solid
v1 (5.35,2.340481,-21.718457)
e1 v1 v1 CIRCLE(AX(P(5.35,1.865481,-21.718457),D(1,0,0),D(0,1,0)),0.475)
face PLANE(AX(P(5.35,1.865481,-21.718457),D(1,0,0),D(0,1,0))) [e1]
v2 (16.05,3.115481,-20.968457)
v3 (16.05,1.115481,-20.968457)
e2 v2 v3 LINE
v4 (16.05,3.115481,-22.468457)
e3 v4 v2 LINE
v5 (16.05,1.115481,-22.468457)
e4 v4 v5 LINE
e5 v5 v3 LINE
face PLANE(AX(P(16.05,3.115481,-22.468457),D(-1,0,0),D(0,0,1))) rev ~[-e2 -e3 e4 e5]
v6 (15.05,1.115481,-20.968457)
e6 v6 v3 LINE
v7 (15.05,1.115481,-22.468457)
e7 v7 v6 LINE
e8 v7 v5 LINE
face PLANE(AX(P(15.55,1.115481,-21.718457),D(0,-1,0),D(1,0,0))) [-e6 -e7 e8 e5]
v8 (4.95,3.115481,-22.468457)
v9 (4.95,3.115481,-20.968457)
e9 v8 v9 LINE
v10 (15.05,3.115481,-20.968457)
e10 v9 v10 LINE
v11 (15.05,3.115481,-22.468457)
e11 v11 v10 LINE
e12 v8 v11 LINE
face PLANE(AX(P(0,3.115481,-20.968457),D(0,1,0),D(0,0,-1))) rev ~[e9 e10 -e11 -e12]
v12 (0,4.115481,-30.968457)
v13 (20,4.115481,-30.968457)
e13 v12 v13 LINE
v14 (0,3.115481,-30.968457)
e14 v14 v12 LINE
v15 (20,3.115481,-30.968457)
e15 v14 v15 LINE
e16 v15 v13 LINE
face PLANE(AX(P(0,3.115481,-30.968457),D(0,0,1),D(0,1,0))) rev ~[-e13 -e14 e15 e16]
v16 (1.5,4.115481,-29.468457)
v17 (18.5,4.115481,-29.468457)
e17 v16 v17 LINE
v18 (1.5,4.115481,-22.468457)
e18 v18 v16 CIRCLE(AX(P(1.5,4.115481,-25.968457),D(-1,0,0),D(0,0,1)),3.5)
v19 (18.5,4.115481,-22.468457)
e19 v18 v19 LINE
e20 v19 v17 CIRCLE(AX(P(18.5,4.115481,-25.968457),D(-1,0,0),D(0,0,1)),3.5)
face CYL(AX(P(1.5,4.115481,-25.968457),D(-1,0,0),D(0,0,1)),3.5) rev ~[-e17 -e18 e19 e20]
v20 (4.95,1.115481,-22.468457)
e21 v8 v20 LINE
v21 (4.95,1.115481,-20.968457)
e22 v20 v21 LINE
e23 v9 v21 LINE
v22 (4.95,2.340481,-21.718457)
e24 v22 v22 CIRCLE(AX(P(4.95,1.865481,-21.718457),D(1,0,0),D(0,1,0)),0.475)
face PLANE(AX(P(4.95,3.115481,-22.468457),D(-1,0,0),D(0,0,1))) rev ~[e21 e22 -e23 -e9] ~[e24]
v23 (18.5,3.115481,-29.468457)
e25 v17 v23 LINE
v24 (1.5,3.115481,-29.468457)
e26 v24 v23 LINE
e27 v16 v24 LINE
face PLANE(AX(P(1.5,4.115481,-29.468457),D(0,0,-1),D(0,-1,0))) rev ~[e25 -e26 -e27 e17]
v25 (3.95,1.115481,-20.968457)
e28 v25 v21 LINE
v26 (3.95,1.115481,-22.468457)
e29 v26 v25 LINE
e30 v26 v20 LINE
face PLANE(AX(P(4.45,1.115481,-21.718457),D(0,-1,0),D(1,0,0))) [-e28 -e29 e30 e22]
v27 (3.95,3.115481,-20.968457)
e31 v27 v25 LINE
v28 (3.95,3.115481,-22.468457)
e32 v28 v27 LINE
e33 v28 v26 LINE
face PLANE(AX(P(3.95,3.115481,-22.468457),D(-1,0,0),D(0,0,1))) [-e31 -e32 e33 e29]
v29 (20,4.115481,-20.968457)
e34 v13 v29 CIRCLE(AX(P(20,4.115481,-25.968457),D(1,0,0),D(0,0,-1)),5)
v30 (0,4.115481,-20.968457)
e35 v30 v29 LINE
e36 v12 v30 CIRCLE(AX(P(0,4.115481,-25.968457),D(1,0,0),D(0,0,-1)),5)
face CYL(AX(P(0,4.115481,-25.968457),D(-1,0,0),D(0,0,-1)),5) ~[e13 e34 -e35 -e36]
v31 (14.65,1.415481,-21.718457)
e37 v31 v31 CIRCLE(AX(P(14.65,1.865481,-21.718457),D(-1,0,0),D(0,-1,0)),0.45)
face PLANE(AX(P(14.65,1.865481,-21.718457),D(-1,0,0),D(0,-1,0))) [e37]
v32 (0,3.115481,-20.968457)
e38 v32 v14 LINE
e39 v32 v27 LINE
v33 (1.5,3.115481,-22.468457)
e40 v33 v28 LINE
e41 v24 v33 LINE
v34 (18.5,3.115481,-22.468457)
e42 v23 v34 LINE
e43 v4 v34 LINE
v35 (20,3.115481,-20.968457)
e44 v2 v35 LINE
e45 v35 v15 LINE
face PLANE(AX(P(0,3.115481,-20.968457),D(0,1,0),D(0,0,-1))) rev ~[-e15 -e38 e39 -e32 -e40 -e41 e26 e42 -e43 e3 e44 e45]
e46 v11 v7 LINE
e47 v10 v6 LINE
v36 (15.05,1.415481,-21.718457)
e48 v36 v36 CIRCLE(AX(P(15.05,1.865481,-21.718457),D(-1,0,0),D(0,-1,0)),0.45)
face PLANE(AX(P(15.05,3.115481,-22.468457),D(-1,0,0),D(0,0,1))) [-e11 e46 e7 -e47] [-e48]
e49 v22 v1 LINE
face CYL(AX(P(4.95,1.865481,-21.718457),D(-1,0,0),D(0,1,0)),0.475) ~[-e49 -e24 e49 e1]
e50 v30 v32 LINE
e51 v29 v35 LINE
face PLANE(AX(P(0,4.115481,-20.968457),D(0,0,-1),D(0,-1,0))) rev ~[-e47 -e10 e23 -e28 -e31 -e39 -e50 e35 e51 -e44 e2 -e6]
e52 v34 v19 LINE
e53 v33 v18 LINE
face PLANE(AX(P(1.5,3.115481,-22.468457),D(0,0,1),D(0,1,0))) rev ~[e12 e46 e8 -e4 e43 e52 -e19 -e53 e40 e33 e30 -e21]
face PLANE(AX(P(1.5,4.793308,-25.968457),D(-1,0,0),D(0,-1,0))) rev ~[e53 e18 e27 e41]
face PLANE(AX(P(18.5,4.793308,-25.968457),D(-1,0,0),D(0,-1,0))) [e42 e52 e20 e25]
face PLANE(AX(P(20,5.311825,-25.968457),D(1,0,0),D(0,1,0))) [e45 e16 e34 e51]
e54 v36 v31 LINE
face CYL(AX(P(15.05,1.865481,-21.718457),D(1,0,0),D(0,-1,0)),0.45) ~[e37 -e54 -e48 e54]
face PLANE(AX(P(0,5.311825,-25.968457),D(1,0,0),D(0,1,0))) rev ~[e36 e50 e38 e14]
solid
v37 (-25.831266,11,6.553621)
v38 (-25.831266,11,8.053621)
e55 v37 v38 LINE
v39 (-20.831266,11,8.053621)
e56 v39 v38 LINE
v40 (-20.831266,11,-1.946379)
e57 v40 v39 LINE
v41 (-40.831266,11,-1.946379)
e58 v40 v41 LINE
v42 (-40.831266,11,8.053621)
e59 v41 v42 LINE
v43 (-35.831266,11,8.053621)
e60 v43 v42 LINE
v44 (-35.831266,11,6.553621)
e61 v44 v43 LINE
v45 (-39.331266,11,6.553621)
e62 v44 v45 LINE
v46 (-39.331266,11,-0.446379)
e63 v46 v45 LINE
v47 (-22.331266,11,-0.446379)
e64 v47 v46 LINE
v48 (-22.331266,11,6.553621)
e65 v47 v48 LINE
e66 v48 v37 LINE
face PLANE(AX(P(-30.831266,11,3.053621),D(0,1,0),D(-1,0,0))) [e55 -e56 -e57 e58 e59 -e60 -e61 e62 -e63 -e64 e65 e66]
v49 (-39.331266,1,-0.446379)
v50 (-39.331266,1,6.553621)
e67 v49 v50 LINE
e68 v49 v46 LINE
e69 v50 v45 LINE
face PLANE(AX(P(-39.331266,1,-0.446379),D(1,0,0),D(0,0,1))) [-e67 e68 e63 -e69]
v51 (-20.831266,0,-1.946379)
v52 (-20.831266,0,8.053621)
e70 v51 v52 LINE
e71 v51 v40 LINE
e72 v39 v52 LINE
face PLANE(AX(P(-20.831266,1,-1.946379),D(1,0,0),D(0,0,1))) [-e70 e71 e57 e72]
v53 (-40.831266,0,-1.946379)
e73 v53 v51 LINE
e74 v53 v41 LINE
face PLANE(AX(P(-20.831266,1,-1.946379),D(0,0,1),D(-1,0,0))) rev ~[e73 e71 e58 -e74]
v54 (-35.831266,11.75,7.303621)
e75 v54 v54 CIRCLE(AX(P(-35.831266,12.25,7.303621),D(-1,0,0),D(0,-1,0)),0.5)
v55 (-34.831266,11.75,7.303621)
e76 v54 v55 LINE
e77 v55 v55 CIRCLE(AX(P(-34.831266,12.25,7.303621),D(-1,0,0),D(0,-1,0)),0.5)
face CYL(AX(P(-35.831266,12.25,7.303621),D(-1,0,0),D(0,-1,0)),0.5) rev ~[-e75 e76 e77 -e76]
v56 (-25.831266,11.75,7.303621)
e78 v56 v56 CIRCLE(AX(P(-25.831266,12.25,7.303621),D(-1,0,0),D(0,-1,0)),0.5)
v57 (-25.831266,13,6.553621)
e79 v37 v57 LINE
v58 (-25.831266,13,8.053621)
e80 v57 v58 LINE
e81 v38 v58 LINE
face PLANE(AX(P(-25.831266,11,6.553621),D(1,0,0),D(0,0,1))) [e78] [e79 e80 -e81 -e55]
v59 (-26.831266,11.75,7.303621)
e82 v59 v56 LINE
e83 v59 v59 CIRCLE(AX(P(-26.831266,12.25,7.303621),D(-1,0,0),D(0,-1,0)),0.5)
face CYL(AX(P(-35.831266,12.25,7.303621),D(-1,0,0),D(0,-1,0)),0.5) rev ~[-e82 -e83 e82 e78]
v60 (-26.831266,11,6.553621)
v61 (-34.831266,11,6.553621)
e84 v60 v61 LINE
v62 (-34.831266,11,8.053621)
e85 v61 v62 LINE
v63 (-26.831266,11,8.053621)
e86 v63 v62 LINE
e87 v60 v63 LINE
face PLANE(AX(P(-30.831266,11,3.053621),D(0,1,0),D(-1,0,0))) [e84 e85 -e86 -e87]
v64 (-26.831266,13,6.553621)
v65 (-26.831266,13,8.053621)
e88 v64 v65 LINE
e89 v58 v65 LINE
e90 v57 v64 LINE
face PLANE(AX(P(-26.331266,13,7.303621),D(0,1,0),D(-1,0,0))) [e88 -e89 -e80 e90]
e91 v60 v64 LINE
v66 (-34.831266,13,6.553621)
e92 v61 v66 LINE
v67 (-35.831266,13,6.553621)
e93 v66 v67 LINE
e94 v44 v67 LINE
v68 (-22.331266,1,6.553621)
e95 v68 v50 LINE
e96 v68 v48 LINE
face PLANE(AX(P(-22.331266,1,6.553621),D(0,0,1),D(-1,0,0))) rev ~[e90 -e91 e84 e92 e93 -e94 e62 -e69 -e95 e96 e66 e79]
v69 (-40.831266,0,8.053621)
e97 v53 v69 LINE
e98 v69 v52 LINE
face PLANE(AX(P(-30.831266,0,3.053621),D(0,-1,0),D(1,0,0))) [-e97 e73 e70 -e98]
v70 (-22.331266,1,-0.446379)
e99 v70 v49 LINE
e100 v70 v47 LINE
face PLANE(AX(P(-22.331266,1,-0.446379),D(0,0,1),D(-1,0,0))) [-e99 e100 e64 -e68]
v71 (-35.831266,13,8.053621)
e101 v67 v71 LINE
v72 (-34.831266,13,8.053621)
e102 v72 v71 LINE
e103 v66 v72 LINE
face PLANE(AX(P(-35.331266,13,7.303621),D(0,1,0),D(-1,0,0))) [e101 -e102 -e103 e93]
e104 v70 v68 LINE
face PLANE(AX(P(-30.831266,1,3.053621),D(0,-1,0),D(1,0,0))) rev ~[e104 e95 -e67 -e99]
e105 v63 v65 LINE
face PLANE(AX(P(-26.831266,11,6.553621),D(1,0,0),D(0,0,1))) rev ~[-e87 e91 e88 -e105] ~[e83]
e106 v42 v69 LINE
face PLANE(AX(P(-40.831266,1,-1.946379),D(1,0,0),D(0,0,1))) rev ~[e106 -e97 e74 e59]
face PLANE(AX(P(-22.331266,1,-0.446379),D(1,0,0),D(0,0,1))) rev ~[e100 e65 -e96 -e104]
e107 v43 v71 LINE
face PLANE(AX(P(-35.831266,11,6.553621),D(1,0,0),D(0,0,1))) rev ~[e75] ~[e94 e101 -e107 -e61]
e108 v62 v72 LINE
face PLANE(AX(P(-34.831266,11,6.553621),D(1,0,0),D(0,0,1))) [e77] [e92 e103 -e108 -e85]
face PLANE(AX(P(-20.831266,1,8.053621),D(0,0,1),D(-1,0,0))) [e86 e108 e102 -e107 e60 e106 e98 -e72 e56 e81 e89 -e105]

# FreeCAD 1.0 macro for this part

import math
import FreeCAD as App
import Part
import Sketcher
Q = App.Units.Quantity

doc = App.newDocument("Part")
body = doc.addObject("PartDesign::Body", "Body")

# Sketch on XZ plane
sketch1 = body.newObject("Sketcher::SketchObject", "Sketch")
sketch1.AttachmentSupport = (doc.getObject("XZ_Plane"), [""])
sketch1.MapMode = "FlatFace"
sketch1.addGeometry([
    Part.LineSegment(App.Vector(-41, 8, 0), App.Vector(-41, -2, 0)),
    Part.LineSegment(App.Vector(-41, -2, 0), App.Vector(-21, -2, 0)),
    Part.LineSegment(App.Vector(-21, -2, 0), App.Vector(-21, 8, 0)),
    Part.LineSegment(App.Vector(-21, 8, 0), App.Vector(-41, 8, 0)),
], False)
sketch1.addConstraint([
    Sketcher.Constraint("Coincident", 0, 2, 1, 1),
    Sketcher.Constraint("Coincident", 1, 2, 2, 1),
    Sketcher.Constraint("Coincident", 2, 2, 3, 1),
    Sketcher.Constraint("Coincident", 3, 2, 0, 1),
    Sketcher.Constraint("Vertical", 0),
    Sketcher.Constraint("Horizontal", 1),
    Sketcher.Constraint("Vertical", 2),
    Sketcher.Constraint("Horizontal", 3),
    Sketcher.Constraint("DistanceX", 1, 1, 1, 2, Q("20 mm")),
    Sketcher.Constraint("DistanceY", 0, 2, 0, 1, Q("10 mm")),
    Sketcher.Constraint("DistanceY", 0, 2, -1, 1, Q("1.946379 mm")),
    Sketcher.Constraint("DistanceX", 0, 2, -1, 1, Q("40.831266 mm")),
])
pad1 = body.newObject("PartDesign::Pad", "Pad")
pad1.Profile = sketch1
pad1.Length = 1
pad1.Reversed = True

# Sketch on XZ plane
sketch2 = body.newObject("Sketcher::SketchObject", "Sketch001")
sketch2.AttachmentSupport = (doc.getObject("XZ_Plane"), [""])
sketch2.MapMode = "FlatFace"
sketch2.AttachmentOffset = App.Placement(App.Vector(0, 0, -1), App.Rotation())
sketch2.addGeometry([
    Part.LineSegment(App.Vector(-21, 8, 0), App.Vector(-21, -2, 0)),  # 0
    Part.LineSegment(App.Vector(-21, -2, 0), App.Vector(-41, -2, 0)),  # 1
    Part.LineSegment(App.Vector(-41, -2, 0), App.Vector(-41, 8, 0)),  # 2
    Part.LineSegment(App.Vector(-41, 8, 0), App.Vector(-21, 8, 0)),  # 3
    Part.LineSegment(App.Vector(-39, 0, 0), App.Vector(-22, 0, 0)),  # 4
    Part.LineSegment(App.Vector(-22, 0, 0), App.Vector(-22, 7, 0)),  # 5
    Part.LineSegment(App.Vector(-22, 7, 0), App.Vector(-39, 7, 0)),  # 6
    Part.LineSegment(App.Vector(-39, 7, 0), App.Vector(-39, 0, 0)),  # 7
], False)
sketch2.addConstraint([
    Sketcher.Constraint("Coincident", 0, 2, 1, 1),
    Sketcher.Constraint("Coincident", 1, 2, 2, 1),
    Sketcher.Constraint("Coincident", 2, 2, 3, 1),
    Sketcher.Constraint("Coincident", 3, 2, 0, 1),
    Sketcher.Constraint("Coincident", 4, 2, 5, 1),
    Sketcher.Constraint("Coincident", 5, 2, 6, 1),
    Sketcher.Constraint("Coincident", 6, 2, 7, 1),
    Sketcher.Constraint("Coincident", 7, 2, 4, 1),
    Sketcher.Constraint("Vertical", 0),
    Sketcher.Constraint("Horizontal", 1),
    Sketcher.Constraint("Vertical", 2),
    Sketcher.Constraint("Horizontal", 3),
    Sketcher.Constraint("Horizontal", 4),
    Sketcher.Constraint("Vertical", 5),
    Sketcher.Constraint("Horizontal", 6),
    Sketcher.Constraint("Vertical", 7),
    Sketcher.Constraint("DistanceX", 1, 2, 1, 1, Q("20 mm")),
    Sketcher.Constraint("DistanceX", 4, 1, 4, 2, Q("17 mm")),
    Sketcher.Constraint("DistanceY", 0, 2, 0, 1, Q("10 mm")),
    Sketcher.Constraint("DistanceY", 5, 1, 5, 2, Q("7 mm")),
    Sketcher.Constraint("DistanceX", 4, 2, 0, 2, Q("1.5 mm")),
    Sketcher.Constraint("DistanceY", 0, 2, 4, 2, Q("1.5 mm")),
    Sketcher.Constraint("DistanceY", 0, 2, -1, 1, Q("1.946379 mm")),
    Sketcher.Constraint("DistanceX", 0, 2, -1, 1, Q("20.831266 mm")),
])
pad2 = body.newObject("PartDesign::Pad", "Pad001")
pad2.Profile = sketch2
pad2.Length = 10
pad2.Reversed = True

# Sketch on XZ plane
sketch3 = body.newObject("Sketcher::SketchObject", "Sketch002")
sketch3.AttachmentSupport = (doc.getObject("XZ_Plane"), [""])
sketch3.MapMode = "FlatFace"
sketch3.AttachmentOffset = App.Placement(App.Vector(0, 0, -11), App.Rotation())
sketch3.addGeometry([
    Part.LineSegment(App.Vector(-25.8, 8.1, 0), App.Vector(-25.8, 6.6, 0)),  # 0
    Part.LineSegment(App.Vector(-25.8, 6.6, 0), App.Vector(-26.8, 6.6, 0)),  # 1
    Part.LineSegment(App.Vector(-26.8, 6.6, 0), App.Vector(-26.8, 8.1, 0)),  # 2
    Part.LineSegment(App.Vector(-26.8, 8.1, 0), App.Vector(-25.8, 8.1, 0)),  # 3
    Part.LineSegment(App.Vector(-34.8, 8.1, 0), App.Vector(-34.8, 6.6, 0)),  # 4
    Part.LineSegment(App.Vector(-34.8, 6.6, 0), App.Vector(-35.8, 6.6, 0)),  # 5
    Part.LineSegment(App.Vector(-35.8, 6.6, 0), App.Vector(-35.8, 8.1, 0)),  # 6
    Part.LineSegment(App.Vector(-35.8, 8.1, 0), App.Vector(-34.8, 8.1, 0)),  # 7
], False)
sketch3.addConstraint([
    Sketcher.Constraint("Coincident", 0, 2, 1, 1),
    Sketcher.Constraint("Coincident", 1, 2, 2, 1),
    Sketcher.Constraint("Coincident", 2, 2, 3, 1),
    Sketcher.Constraint("Coincident", 3, 2, 0, 1),
    Sketcher.Constraint("Coincident", 4, 2, 5, 1),
    Sketcher.Constraint("Coincident", 5, 2, 6, 1),
    Sketcher.Constraint("Coincident", 6, 2, 7, 1),
    Sketcher.Constraint("Coincident", 7, 2, 4, 1),
    Sketcher.Constraint("Vertical", 0),
    Sketcher.Constraint("Horizontal", 1),
    Sketcher.Constraint("Vertical", 2),
    Sketcher.Constraint("Horizontal", 3),
    Sketcher.Constraint("Vertical", 4),
    Sketcher.Constraint("Horizontal", 5),
    Sketcher.Constraint("Vertical", 6),
    Sketcher.Constraint("Horizontal", 7),
    Sketcher.Constraint("Horizontal", 1, 2, 4, 2),
    Sketcher.Constraint("Horizontal", 3, 2, 6, 2),
    Sketcher.Constraint("Equal", 3, 5),
    Sketcher.Constraint("DistanceX", 1, 2, 1, 1, Q("1 mm")),
    Sketcher.Constraint("DistanceY", 0, 2, 0, 1, Q("1.5 mm")),
    Sketcher.Constraint("DistanceX", 4, 2, 1, 2, Q("8 mm")),
    Sketcher.Constraint("DistanceY", -1, 1, 0, 2, Q("6.553621 mm")),
    Sketcher.Constraint("DistanceX", 0, 2, -1, 1, Q("25.831266 mm")),
])
pad3 = body.newObject("PartDesign::Pad", "Pad002")
pad3.Profile = sketch3
pad3.Length = 2
pad3.Reversed = True

# Sketch on YZ plane
sketch4 = body.newObject("Sketcher::SketchObject", "Sketch003")
sketch4.AttachmentSupport = (doc.getObject("YZ_Plane"), [""])
sketch4.MapMode = "FlatFace"
sketch4.AttachmentOffset = App.Placement(App.Vector(0, 0, -35.831266), App.Rotation())
sketch4.addGeometry(Part.Circle(App.Vector(12.2, 7.3, 0), App.Vector(0, 0, 1), 0.5), False)
sketch4.addConstraint([
    Sketcher.Constraint("Diameter", 0, Q("1 mm")),
    Sketcher.Constraint("DistanceX", -1, 1, 0, 3, Q("12.25 mm")),
    Sketcher.Constraint("DistanceY", -1, 1, 0, 3, Q("7.303621 mm")),
])
pocket1 = body.newObject("PartDesign::Pocket", "Pocket")
pocket1.Profile = sketch4
pocket1.Length = 25
pocket1.Reversed = True
body2 = doc.addObject("PartDesign::Body", "Body001")

# Sketch on YZ plane
sketch5 = body2.newObject("Sketcher::SketchObject", "Sketch004")
sketch5.AttachmentSupport = (doc.getObject("YZ_Plane001"), [""])
sketch5.MapMode = "FlatFace"
sketch5.addGeometry([
    Part.LineSegment(App.Vector(3.1, -31, 0), App.Vector(4.1, -31, 0)),
    Part.ArcOfCircle(Part.Circle(App.Vector(4.1, -26, 0), App.Vector(0, 0, 1), 5), math.radians(-90), math.radians(90)),
    Part.LineSegment(App.Vector(4.1, -21, 0), App.Vector(3.1, -21, 0)),
    Part.LineSegment(App.Vector(3.1, -21, 0), App.Vector(3.1, -31, 0)),
], False)
sketch5.addConstraint([
    Sketcher.Constraint("Tangent", 0, 2, 1, 1),
    Sketcher.Constraint("Tangent", 1, 2, 2, 1),
    Sketcher.Constraint("Coincident", 2, 2, 3, 1),
    Sketcher.Constraint("Coincident", 3, 2, 0, 1),
    Sketcher.Constraint("Horizontal", 0),
    Sketcher.Constraint("Horizontal", 2),
    Sketcher.Constraint("Vertical", 3),
    Sketcher.Constraint("Radius", 1, Q("5 mm")),
    Sketcher.Constraint("DistanceX", 0, 1, 0, 2, Q("1 mm")),
    Sketcher.Constraint("DistanceX", -1, 1, 1, 3, Q("4.115481 mm")),
    Sketcher.Constraint("DistanceY", 1, 3, -1, 1, Q("25.968457 mm")),
])
pad4 = body2.newObject("PartDesign::Pad", "Pad003")
pad4.Profile = sketch5
pad4.Length = 20

# Sketch on YZ plane
sketch6 = body2.newObject("Sketcher::SketchObject", "Sketch005")
sketch6.AttachmentSupport = (doc.getObject("YZ_Plane001"), [""])
sketch6.MapMode = "FlatFace"
sketch6.AttachmentOffset = App.Placement(App.Vector(0, 0, 1.5), App.Rotation())
sketch6.addGeometry([
    Part.LineSegment(App.Vector(3.1, -29.5, 0), App.Vector(3.1, -22.5, 0)),
    Part.LineSegment(App.Vector(3.1, -22.5, 0), App.Vector(4.1, -22.5, 0)),
    Part.ArcOfCircle(Part.Circle(App.Vector(4.1, -26, 0), App.Vector(0, 0, 1), 3.5), math.radians(-90), math.radians(90)),
    Part.LineSegment(App.Vector(4.1, -29.5, 0), App.Vector(3.1, -29.5, 0)),
], False)
sketch6.addConstraint([
    Sketcher.Constraint("Coincident", 0, 2, 1, 1),
    Sketcher.Constraint("Tangent", 1, 2, 2, 2),
    Sketcher.Constraint("Tangent", 2, 1, 3, 1),
    Sketcher.Constraint("Coincident", 3, 2, 0, 1),
    Sketcher.Constraint("Vertical", 0),
    Sketcher.Constraint("Horizontal", 1),
    Sketcher.Constraint("Horizontal", 3),
    Sketcher.Constraint("Radius", 2, Q("3.5 mm")),
    Sketcher.Constraint("DistanceX", 1, 1, 1, 2, Q("1 mm")),
    Sketcher.Constraint("DistanceX", -1, 1, 2, 3, Q("4.115481 mm")),
    Sketcher.Constraint("DistanceY", 2, 3, -1, 1, Q("25.968457 mm")),
])
pocket2 = body2.newObject("PartDesign::Pocket", "Pocket001")
pocket2.Profile = sketch6
pocket2.Length = 17
pocket2.Reversed = True

# Sketch on XZ plane
sketch7 = body2.newObject("Sketcher::SketchObject", "Sketch006")
sketch7.AttachmentSupport = (doc.getObject("XZ_Plane001"), [""])
sketch7.MapMode = "FlatFace"
sketch7.AttachmentOffset = App.Placement(App.Vector(0, 0, -3.115481), App.Rotation())
sketch7.addGeometry([
    Part.LineSegment(App.Vector(4, -21, 0), App.Vector(4, -22.5, 0)),  # 0
    Part.LineSegment(App.Vector(4, -22.5, 0), App.Vector(5, -22.5, 0)),  # 1
    Part.LineSegment(App.Vector(5, -22.5, 0), App.Vector(5, -21, 0)),  # 2
    Part.LineSegment(App.Vector(5, -21, 0), App.Vector(4, -21, 0)),  # 3
    Part.LineSegment(App.Vector(15.1, -21, 0), App.Vector(15.1, -22.5, 0)),  # 4
    Part.LineSegment(App.Vector(15.1, -22.5, 0), App.Vector(16.1, -22.5, 0)),  # 5
    Part.LineSegment(App.Vector(16.1, -22.5, 0), App.Vector(16.1, -21, 0)),  # 6
    Part.LineSegment(App.Vector(16.1, -21, 0), App.Vector(15.1, -21, 0)),  # 7
], False)
sketch7.addConstraint([
    Sketcher.Constraint("Coincident", 0, 2, 1, 1),
    Sketcher.Constraint("Coincident", 1, 2, 2, 1),
    Sketcher.Constraint("Coincident", 2, 2, 3, 1),
    Sketcher.Constraint("Coincident", 3, 2, 0, 1),
    Sketcher.Constraint("Coincident", 4, 2, 5, 1),
    Sketcher.Constraint("Coincident", 5, 2, 6, 1),
    Sketcher.Constraint("Coincident", 6, 2, 7, 1),
    Sketcher.Constraint("Coincident", 7, 2, 4, 1),
    Sketcher.Constraint("Vertical", 0),
    Sketcher.Constraint("Horizontal", 1),
    Sketcher.Constraint("Vertical", 2),
    Sketcher.Constraint("Horizontal", 3),
    Sketcher.Constraint("Vertical", 4),
    Sketcher.Constraint("Horizontal", 5),
    Sketcher.Constraint("Vertical", 6),
    Sketcher.Constraint("Horizontal", 7),
    Sketcher.Constraint("Horizontal", 1, 2, 4, 2),
    Sketcher.Constraint("Horizontal", 3, 2, 6, 2),
    Sketcher.Constraint("Equal", 3, 5),
    Sketcher.Constraint("DistanceX", 1, 1, 1, 2, Q("1 mm")),
    Sketcher.Constraint("DistanceY", 0, 2, 0, 1, Q("1.5 mm")),
    Sketcher.Constraint("DistanceX", 1, 2, 4, 2, Q("10.1 mm")),
    Sketcher.Constraint("DistanceX", -1, 1, 0, 2, Q("3.95 mm")),
    Sketcher.Constraint("DistanceY", 0, 2, -1, 1, Q("22.468457 mm")),
])
pad5 = body2.newObject("PartDesign::Pad", "Pad004")
pad5.Profile = sketch7
pad5.Length = 2

# Sketch on YZ plane
sketch8 = body2.newObject("Sketcher::SketchObject", "Sketch007")
sketch8.AttachmentSupport = (doc.getObject("YZ_Plane001"), [""])
sketch8.MapMode = "FlatFace"
sketch8.AttachmentOffset = App.Placement(App.Vector(0, 0, 15.05), App.Rotation())
sketch8.addGeometry(Part.Circle(App.Vector(1.87, -21.72, 0), App.Vector(0, 0, 1), 0.45), False)
sketch8.addConstraint([
    Sketcher.Constraint("Diameter", 0, Q("0.9 mm")),
    Sketcher.Constraint("DistanceX", -1, 1, 0, 3, Q("1.865481 mm")),
    Sketcher.Constraint("DistanceY", 0, 3, -1, 1, Q("21.718457 mm")),
])
pad6 = body2.newObject("PartDesign::Pad", "Pad005")
pad6.Profile = sketch8
pad6.Length = 0.4
pad6.Reversed = True

# Sketch on YZ plane
sketch9 = body2.newObject("Sketcher::SketchObject", "Sketch008")
sketch9.AttachmentSupport = (doc.getObject("YZ_Plane001"), [""])
sketch9.MapMode = "FlatFace"
sketch9.AttachmentOffset = App.Placement(App.Vector(0, 0, 4.95), App.Rotation())
sketch9.addGeometry(Part.Circle(App.Vector(1.87, -21.72, 0), App.Vector(0, 0, 1), 0.47), False)
sketch9.addConstraint([
    Sketcher.Constraint("Diameter", 0, Q("0.95 mm")),
    Sketcher.Constraint("DistanceX", -1, 1, 0, 3, Q("1.865481 mm")),
    Sketcher.Constraint("DistanceY", 0, 3, -1, 1, Q("21.718457 mm")),
])
pad7 = body2.newObject("PartDesign::Pad", "Pad006")
pad7.Profile = sketch9
pad7.Length = 0.4

doc.recompute()
